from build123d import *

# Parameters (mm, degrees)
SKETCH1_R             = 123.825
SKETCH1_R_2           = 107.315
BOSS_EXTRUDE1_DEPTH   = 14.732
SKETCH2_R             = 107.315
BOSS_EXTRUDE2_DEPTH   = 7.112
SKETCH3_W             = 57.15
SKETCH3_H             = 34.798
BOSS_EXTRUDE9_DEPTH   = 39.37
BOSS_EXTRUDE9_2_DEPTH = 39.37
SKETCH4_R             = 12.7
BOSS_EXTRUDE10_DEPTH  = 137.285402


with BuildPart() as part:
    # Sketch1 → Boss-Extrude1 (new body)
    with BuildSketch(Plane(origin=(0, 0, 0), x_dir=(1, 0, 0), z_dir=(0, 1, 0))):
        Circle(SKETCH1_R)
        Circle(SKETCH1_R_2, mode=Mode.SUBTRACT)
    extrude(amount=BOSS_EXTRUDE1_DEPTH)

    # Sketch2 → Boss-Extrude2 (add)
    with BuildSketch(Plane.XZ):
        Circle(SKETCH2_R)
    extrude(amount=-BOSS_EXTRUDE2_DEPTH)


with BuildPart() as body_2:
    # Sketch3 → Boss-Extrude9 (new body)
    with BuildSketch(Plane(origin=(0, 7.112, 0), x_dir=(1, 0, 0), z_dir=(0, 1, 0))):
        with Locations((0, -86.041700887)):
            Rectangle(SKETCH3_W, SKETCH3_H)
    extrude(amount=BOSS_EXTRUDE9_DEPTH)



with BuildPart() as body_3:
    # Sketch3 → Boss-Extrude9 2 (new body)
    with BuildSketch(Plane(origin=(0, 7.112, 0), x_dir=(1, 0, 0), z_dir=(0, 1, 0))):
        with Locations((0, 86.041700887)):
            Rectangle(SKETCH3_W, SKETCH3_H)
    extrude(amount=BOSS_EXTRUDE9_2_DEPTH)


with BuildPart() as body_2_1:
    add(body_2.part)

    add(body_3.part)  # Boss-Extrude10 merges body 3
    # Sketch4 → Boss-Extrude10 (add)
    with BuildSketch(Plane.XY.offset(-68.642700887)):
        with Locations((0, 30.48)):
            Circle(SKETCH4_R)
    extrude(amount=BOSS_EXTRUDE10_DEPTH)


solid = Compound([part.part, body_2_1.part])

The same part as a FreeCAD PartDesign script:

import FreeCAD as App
import Part
import Sketcher
Q = App.Units.Quantity


def add_polygon(sketch, points):
    """Adds a closed chain of lines whose ends are joined by coincident constraints."""
    first, n = sketch.GeometryCount, len(points)
    for a, b in zip(points, points[1:] + points[:1]):
        sketch.addGeometry(Part.LineSegment(App.Vector(*a, 0), App.Vector(*b, 0)), False)
    for i in range(n):
        sketch.addConstraint(Sketcher.Constraint("Coincident", first + i, 2, first + (i + 1) % n, 1))

doc = App.newDocument("Part")
body = doc.addObject("PartDesign::Body", "Body")

# Sketch on XZ plane
sketch1 = body.newObject("Sketcher::SketchObject", "Sketch")
sketch1.AttachmentSupport = (doc.getObject("XZ_Plane"), [""])
sketch1.MapMode = "FlatFace"
sketch1.addGeometry([
    Part.Circle(App.Vector(0, 0, 0), App.Vector(0, 0, 1), 124),
    Part.Circle(App.Vector(0, 0, 0), App.Vector(0, 0, 1), 107),
], False)
sketch1.addConstraint([
    Sketcher.Constraint("Coincident", 0, 3, -1, 1),
    Sketcher.Constraint("Coincident", 1, 3, -1, 1),
    Sketcher.Constraint("Diameter", 0, Q("9.75 in")),
    Sketcher.Constraint("Diameter", 1, Q("8.45 in")),
])
pad1 = body.newObject("PartDesign::Pad", "Pad")
pad1.Profile = sketch1
pad1.Length = Q("0.58 in")
pad1.Reversed = True

# Sketch on XZ plane
sketch2 = body.newObject("Sketcher::SketchObject", "Sketch001")
sketch2.AttachmentSupport = (doc.getObject("XZ_Plane"), [""])
sketch2.MapMode = "FlatFace"
sketch2.addGeometry(Part.Circle(App.Vector(0, 0, 0), App.Vector(0, 0, 1), 107), False)
sketch2.addConstraint([
    Sketcher.Constraint("Coincident", 0, 3, -1, 1),
    Sketcher.Constraint("Diameter", 0, Q("8.45 in")),
])
pad2 = body.newObject("PartDesign::Pad", "Pad001")
pad2.Profile = sketch2
pad2.Length = Q("0.28 in")
pad2.Reversed = True
body2 = doc.addObject("PartDesign::Body", "Body001")

# Sketch on XZ plane
sketch3 = body2.newObject("Sketcher::SketchObject", "Sketch002")
sketch3.AttachmentSupport = (doc.getObject("XZ_Plane001"), [""])
sketch3.MapMode = "FlatFace"
sketch3.AttachmentOffset = App.Placement(App.Vector(0, 0, -0.28 * 25.4), App.Rotation())
add_polygon(sketch3, [(-29, 69), (-29, 103), (29, 103), (29, 69)])  # lines 0-3
sketch3.addConstraint([
    Sketcher.Constraint("Vertical", 0),
    Sketcher.Constraint("Horizontal", 1),
    Sketcher.Constraint("Vertical", 2),
    Sketcher.Constraint("Horizontal", 3),
    Sketcher.Constraint("DistanceX", 1, 1, 1, 2, Q("2.25 in")),
    Sketcher.Constraint("DistanceY", 0, 1, 0, 2, Q("1.37 in")),
    Sketcher.Constraint("DistanceX", 0, 2, -1, 1, Q("1.125 in")),
    Sketcher.Constraint("DistanceY", -1, 1, 0, 2, Q("103.440701 mm")),
])
pad3 = body2.newObject("PartDesign::Pad", "Pad002")
pad3.Profile = sketch3
pad3.Length = Q("1.55 in")
pad3.Reversed = True
body3 = doc.addObject("PartDesign::Body", "Body002")

# Sketch on XZ plane
sketch4 = body3.newObject("Sketcher::SketchObject", "Sketch003")
sketch4.AttachmentSupport = (doc.getObject("XZ_Plane002"), [""])
sketch4.MapMode = "FlatFace"
sketch4.AttachmentOffset = App.Placement(App.Vector(0, 0, -0.28 * 25.4), App.Rotation())
add_polygon(sketch4, [(-29, -103), (-29, -69), (29, -69), (29, -103)])  # lines 0-3
sketch4.addConstraint([
    Sketcher.Constraint("Vertical", 0),
    Sketcher.Constraint("Horizontal", 1),
    Sketcher.Constraint("Vertical", 2),
    Sketcher.Constraint("Horizontal", 3),
    Sketcher.Constraint("DistanceX", 1, 1, 1, 2, Q("2.25 in")),
    Sketcher.Constraint("DistanceY", 0, 1, 0, 2, Q("1.37 in")),
    Sketcher.Constraint("DistanceX", 0, 2, -1, 1, Q("1.125 in")),
    Sketcher.Constraint("DistanceY", 0, 2, -1, 1, Q("68.642701 mm")),
])
pad4 = body3.newObject("PartDesign::Pad", "Pad003")
pad4.Profile = sketch4
pad4.Length = Q("1.55 in")
pad4.Reversed = True
body2.AllowCompound = True
doc.recompute()

boolean = body2.newObject("PartDesign::Boolean", "Boolean")
boolean.Type = "Fuse"
boolean.addObjects([body3])

# Sketch on XY plane
sketch5 = body2.newObject("Sketcher::SketchObject", "Sketch004")
sketch5.AttachmentSupport = (doc.getObject("XY_Plane001"), [""])
sketch5.MapMode = "FlatFace"
sketch5.AttachmentOffset = App.Placement(App.Vector(0, 0, -68.642701), App.Rotation())
sketch5.addGeometry(Part.Circle(App.Vector(0, 30, 0), App.Vector(0, 0, 1), 13), False)
sketch5.addConstraint([
    Sketcher.Constraint("PointOnObject", 0, 3, -2),
    Sketcher.Constraint("Diameter", 0, Q("1 in")),
    Sketcher.Constraint("DistanceY", -1, 1, 0, 3, Q("1.2 in")),
])
pad5 = body2.newObject("PartDesign::Pad", "Pad004")
pad5.Profile = sketch5
pad5.Length = 137.285402

doc.recompute()
